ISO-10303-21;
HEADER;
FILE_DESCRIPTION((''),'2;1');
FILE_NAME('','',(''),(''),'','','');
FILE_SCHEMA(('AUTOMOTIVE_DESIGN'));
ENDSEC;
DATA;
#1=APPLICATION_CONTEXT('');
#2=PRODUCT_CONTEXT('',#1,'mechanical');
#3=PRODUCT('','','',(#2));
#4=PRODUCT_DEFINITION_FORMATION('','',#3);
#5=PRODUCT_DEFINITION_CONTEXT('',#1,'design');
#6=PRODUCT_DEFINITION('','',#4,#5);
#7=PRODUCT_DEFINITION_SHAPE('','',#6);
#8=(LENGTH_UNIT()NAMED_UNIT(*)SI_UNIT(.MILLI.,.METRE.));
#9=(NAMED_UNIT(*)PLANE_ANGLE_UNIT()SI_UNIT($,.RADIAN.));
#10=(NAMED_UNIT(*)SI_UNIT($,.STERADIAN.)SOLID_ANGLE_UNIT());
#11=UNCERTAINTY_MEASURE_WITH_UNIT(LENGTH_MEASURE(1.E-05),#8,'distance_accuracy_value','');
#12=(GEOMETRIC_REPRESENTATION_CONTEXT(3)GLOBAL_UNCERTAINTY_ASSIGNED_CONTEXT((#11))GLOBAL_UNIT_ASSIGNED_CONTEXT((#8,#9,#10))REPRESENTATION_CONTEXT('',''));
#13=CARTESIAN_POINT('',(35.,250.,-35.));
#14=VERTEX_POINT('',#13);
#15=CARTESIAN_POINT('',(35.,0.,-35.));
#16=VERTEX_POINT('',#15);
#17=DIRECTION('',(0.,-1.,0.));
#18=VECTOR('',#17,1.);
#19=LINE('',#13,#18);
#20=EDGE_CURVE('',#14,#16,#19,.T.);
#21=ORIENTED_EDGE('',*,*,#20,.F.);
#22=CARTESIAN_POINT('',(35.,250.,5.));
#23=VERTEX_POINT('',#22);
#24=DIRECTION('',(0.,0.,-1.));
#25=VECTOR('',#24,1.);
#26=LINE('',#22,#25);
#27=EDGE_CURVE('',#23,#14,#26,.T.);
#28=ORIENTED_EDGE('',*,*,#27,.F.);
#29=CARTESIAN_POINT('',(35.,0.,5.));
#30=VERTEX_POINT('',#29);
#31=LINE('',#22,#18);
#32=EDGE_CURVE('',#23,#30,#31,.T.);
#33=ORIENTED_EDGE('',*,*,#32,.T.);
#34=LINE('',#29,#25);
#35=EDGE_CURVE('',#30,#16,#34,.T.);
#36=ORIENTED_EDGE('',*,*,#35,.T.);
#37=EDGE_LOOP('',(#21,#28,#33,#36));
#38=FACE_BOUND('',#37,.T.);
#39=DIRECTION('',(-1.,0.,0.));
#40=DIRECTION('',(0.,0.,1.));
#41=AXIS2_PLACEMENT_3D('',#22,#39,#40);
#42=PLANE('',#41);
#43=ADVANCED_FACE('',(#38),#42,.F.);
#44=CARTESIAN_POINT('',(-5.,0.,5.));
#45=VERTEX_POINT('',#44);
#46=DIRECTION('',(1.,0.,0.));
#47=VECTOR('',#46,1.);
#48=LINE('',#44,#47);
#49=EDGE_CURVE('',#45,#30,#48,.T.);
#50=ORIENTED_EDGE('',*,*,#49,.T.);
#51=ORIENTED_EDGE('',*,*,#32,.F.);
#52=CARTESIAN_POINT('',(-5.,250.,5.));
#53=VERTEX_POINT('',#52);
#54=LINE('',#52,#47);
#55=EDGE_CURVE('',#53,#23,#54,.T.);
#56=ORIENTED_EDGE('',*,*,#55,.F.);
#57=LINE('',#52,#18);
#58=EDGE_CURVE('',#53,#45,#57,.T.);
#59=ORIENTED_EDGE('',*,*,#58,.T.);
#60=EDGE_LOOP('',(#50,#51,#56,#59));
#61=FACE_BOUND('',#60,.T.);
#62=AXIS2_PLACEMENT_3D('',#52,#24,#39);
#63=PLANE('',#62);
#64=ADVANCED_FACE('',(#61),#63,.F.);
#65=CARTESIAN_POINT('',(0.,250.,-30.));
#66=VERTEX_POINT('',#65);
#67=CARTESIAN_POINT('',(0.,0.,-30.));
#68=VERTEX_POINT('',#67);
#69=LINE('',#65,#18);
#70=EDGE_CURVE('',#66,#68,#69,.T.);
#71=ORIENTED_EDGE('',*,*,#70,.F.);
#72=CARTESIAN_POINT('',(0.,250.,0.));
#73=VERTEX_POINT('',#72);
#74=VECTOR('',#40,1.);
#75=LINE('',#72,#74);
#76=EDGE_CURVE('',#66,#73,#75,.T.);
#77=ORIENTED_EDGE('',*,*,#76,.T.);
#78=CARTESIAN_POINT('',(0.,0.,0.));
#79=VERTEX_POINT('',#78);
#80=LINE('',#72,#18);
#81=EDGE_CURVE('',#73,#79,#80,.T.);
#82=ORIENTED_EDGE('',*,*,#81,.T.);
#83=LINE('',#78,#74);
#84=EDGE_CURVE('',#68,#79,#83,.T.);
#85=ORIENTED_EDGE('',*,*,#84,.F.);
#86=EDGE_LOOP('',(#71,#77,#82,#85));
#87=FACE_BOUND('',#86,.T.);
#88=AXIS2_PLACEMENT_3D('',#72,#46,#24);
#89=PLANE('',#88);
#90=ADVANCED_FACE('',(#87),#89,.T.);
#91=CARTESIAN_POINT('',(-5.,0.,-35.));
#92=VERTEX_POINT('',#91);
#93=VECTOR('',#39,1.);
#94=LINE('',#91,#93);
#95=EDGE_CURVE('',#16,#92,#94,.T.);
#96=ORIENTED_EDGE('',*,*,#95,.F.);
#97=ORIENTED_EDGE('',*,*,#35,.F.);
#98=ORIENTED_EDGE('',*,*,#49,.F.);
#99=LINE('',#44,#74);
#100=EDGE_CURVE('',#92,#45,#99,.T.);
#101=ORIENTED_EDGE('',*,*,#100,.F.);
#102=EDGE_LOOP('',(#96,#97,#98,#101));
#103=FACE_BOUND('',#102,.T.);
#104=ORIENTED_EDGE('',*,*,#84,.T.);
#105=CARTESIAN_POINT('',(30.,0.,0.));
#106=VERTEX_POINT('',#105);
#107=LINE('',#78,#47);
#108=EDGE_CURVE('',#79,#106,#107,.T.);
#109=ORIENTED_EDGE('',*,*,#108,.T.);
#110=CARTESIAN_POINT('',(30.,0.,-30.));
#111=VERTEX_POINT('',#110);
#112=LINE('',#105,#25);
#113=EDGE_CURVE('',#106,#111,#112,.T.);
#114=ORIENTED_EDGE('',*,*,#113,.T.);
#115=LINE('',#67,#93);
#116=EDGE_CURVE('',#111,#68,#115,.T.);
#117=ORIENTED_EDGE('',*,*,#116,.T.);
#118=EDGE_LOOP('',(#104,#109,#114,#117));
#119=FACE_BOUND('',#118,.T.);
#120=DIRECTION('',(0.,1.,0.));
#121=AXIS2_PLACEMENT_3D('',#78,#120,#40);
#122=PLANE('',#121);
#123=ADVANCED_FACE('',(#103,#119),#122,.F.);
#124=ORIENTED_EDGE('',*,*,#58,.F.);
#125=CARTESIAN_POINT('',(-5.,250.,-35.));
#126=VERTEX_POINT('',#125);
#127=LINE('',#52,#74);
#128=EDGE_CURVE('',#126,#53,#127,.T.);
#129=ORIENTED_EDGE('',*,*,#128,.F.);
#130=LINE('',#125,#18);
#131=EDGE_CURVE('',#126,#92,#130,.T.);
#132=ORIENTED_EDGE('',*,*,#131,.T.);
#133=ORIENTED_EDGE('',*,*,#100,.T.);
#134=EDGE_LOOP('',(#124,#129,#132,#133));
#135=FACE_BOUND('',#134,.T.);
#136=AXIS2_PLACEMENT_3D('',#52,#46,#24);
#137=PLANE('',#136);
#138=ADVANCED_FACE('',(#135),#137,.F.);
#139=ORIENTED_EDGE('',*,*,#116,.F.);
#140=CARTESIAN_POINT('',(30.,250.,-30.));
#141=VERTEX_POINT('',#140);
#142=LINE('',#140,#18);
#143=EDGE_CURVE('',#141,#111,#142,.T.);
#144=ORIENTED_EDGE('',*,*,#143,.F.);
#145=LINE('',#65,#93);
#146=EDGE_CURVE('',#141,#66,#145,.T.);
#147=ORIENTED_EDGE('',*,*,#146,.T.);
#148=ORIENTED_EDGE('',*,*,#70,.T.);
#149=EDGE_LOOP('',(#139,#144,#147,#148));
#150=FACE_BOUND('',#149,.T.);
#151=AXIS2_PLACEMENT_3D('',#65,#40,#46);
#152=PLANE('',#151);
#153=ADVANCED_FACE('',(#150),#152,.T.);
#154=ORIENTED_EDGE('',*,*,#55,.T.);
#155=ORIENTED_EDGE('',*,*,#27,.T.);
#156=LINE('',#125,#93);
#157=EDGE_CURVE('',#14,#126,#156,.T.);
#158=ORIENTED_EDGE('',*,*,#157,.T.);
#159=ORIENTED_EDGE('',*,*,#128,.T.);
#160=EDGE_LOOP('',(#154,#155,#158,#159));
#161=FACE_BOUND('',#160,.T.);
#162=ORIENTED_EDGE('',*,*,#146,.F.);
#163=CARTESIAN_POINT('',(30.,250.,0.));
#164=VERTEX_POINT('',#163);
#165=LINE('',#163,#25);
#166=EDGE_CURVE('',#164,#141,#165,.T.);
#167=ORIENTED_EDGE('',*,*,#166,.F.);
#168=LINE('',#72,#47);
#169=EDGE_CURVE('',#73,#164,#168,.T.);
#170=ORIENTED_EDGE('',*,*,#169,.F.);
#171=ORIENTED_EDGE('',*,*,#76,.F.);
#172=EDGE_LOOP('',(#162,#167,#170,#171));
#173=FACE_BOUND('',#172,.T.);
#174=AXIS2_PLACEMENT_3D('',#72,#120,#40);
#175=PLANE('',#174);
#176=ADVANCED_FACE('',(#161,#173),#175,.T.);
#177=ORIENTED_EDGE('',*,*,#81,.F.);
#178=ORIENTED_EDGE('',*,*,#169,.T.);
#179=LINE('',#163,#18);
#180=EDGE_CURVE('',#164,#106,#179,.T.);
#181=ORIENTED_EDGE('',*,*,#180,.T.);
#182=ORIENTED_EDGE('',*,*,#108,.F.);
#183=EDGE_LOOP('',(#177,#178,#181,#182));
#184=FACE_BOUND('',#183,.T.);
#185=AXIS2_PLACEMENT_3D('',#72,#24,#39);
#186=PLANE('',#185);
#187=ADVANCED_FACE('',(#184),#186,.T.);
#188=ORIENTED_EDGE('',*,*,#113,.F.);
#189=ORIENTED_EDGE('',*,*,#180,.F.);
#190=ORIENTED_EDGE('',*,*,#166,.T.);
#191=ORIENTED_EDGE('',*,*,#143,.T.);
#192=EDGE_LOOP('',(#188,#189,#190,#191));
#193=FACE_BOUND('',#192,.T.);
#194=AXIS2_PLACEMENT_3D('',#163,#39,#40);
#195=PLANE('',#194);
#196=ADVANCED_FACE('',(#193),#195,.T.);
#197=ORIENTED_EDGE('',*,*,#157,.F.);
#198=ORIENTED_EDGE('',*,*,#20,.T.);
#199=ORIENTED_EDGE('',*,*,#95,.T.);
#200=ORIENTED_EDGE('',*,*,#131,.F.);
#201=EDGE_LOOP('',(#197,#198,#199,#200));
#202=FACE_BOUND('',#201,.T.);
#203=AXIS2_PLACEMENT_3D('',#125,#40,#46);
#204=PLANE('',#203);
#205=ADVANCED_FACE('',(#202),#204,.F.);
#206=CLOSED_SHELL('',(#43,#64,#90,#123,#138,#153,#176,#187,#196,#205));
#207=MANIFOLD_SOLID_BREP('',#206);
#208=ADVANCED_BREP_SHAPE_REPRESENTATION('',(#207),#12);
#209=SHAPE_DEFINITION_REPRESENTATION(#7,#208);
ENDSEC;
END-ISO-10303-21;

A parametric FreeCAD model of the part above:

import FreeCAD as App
import Part
import Sketcher

V = App.Vector
Q = App.Units.Quantity

doc = App.newDocument("Part")
body = doc.addObject("PartDesign::Body", "Body")

sketch1 = body.newObject("Sketcher::SketchObject", "Sketch")
sketch1.AttachmentSupport = (doc.getObject("XZ_Plane"), [""])
sketch1.MapMode = "FlatFace"
sketch1.addGeometry([
    Part.LineSegment(V(-5, -35, 0), V(-5, 5, 0)),
    Part.LineSegment(V(-5, 5, 0), V(35, 5, 0)),
    Part.LineSegment(V(35, 5, 0), V(35, -35, 0)),
    Part.LineSegment(V(35, -35, 0), V(-5, -35, 0)),
    Part.LineSegment(V(30, 0, 0), V(0, 0, 0)),
    Part.LineSegment(V(0, 0, 0), V(0, -30, 0)),
    Part.LineSegment(V(0, -30, 0), V(30, -30, 0)),
    Part.LineSegment(V(30, -30, 0), V(30, 0, 0)),
], False)
sketch1.addConstraint([
    Sketcher.Constraint("Coincident", 0, 2, 1, 1),
    Sketcher.Constraint("Coincident", 1, 2, 2, 1),
    Sketcher.Constraint("Coincident", 2, 2, 3, 1),
    Sketcher.Constraint("Coincident", 3, 2, 0, 1),
    Sketcher.Constraint("Coincident", 4, 2, 5, 1),
    Sketcher.Constraint("Coincident", 5, 2, 6, 1),
    Sketcher.Constraint("Coincident", 6, 2, 7, 1),
    Sketcher.Constraint("Coincident", 7, 2, 4, 1),
    Sketcher.Constraint("Vertical", 0),
    Sketcher.Constraint("Horizontal", 1),
    Sketcher.Constraint("Vertical", 2),
    Sketcher.Constraint("Horizontal", 3),
    Sketcher.Constraint("Horizontal", 4),
    Sketcher.Constraint("Vertical", 5),
    Sketcher.Constraint("Horizontal", 6),
    Sketcher.Constraint("Vertical", 7),
    Sketcher.Constraint("Coincident", 4, 2, -1, 1),
    Sketcher.Constraint("Equal", 3, 0),
    Sketcher.Constraint("Equal", 6, 5),
    Sketcher.Constraint("DistanceX", 1, 1, 1, 2, Q("40 mm")),
    Sketcher.Constraint("DistanceX", 4, 2, 4, 1, Q("30 mm")),
    Sketcher.Constraint("DistanceX", 0, 2, -1, 1, Q("5 mm")),
    Sketcher.Constraint("DistanceY", -1, 1, 0, 2, Q("5 mm")),
])
pad1 = body.newObject("PartDesign::Pad", "Pad")
pad1.Profile = sketch1
pad1.Length = 250
pad1.Reversed = True

doc.recompute()
